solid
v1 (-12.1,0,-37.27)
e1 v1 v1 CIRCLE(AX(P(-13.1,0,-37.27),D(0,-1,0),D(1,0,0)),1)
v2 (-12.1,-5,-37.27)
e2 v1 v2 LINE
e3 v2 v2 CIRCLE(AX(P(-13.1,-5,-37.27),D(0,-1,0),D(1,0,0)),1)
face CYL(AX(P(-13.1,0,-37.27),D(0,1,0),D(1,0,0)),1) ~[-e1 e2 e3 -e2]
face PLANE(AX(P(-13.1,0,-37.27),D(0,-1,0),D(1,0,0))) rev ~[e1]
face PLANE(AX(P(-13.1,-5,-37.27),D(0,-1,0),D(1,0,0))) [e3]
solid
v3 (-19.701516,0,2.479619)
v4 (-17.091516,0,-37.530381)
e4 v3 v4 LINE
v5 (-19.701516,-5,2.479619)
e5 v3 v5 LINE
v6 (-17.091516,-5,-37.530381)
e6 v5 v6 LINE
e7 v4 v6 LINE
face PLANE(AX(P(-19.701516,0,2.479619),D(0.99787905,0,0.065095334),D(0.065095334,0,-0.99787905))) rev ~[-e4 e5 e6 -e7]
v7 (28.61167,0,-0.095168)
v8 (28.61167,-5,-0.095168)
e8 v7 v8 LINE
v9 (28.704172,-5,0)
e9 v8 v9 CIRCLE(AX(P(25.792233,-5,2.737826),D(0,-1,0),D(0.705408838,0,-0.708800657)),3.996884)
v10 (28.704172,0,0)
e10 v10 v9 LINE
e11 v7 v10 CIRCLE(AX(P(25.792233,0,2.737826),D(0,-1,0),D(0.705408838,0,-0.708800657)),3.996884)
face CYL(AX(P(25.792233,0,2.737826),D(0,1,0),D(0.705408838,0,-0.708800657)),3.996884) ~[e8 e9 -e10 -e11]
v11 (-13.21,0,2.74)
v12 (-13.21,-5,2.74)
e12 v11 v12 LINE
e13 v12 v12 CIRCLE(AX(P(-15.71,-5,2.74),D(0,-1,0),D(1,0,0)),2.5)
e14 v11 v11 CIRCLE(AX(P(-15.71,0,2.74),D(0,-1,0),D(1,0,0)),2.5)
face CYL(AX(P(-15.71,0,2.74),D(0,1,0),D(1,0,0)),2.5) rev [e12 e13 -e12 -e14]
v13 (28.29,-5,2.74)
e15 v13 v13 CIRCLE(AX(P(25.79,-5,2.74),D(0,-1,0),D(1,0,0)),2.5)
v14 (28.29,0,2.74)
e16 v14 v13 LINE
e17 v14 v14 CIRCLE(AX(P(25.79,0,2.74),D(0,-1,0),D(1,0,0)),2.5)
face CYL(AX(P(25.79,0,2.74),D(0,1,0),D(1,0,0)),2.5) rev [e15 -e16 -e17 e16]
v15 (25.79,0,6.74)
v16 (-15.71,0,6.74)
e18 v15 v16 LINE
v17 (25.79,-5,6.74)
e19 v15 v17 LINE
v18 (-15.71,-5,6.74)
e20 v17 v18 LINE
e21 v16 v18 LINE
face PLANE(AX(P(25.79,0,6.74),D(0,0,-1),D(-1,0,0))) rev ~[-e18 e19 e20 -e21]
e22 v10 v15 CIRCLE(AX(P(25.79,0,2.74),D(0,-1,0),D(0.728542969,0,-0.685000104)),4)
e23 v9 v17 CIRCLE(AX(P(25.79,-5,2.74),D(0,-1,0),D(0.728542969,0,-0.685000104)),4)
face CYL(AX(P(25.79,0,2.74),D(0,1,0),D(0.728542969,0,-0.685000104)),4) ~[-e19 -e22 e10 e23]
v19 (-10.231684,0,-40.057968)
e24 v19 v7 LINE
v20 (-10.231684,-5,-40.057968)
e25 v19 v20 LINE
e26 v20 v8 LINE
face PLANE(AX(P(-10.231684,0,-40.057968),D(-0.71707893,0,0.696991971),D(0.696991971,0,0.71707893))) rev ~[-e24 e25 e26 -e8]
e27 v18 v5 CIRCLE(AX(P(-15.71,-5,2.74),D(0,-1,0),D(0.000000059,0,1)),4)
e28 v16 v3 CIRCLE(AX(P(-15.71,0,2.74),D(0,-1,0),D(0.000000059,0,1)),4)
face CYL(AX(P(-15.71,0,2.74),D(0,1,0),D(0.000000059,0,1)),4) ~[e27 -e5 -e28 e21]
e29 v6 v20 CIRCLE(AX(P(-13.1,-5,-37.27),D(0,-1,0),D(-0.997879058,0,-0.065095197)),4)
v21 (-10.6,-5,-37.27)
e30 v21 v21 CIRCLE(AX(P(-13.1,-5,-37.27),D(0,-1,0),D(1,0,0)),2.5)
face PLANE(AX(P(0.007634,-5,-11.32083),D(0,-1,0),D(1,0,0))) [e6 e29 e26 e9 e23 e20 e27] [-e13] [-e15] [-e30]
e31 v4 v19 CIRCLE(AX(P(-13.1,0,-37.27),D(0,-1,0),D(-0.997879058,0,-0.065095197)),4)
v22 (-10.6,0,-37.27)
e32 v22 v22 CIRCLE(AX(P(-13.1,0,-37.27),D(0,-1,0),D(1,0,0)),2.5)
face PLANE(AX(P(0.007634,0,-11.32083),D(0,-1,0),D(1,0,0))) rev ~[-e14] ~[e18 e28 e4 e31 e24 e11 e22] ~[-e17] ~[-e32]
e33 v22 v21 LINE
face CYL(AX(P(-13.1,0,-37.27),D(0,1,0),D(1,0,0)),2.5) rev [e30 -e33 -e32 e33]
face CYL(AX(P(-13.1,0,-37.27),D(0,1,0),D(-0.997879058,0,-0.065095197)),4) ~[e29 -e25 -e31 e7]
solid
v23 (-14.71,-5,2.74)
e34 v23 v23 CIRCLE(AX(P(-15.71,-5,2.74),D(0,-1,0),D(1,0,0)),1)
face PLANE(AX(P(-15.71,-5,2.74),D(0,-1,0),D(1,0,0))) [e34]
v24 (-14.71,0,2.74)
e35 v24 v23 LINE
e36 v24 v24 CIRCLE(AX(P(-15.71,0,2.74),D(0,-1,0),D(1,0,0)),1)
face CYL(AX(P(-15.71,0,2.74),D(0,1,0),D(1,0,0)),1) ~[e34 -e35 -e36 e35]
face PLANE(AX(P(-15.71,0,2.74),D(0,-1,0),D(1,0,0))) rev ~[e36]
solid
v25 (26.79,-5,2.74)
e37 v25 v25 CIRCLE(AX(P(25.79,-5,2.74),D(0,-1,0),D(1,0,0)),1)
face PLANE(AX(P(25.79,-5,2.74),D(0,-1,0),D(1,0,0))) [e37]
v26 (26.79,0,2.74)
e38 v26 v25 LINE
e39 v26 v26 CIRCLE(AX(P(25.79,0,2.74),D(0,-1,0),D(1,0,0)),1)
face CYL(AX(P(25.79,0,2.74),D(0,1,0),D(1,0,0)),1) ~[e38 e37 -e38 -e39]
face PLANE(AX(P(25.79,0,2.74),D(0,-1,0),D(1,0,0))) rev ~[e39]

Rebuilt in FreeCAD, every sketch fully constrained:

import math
import FreeCAD as App
import Part
import Sketcher
from FreeCAD import Vector
Q = App.Units.Quantity

doc = App.newDocument("Part")
body = doc.addObject("PartDesign::Body", "Body")
body.AllowCompound = True

# Sketch on XZ plane
sketch1 = body.newObject("Sketcher::SketchObject", "Sketch")
sketch1.AttachmentSupport = (doc.getObject("XZ_Plane"), [""])
sketch1.MapMode = "FlatFace"
sketch1.addGeometry([
    Part.LineSegment(Vector(25.79, 6.74, 0), Vector(-15.71, 6.74, 0)),  # 0
    Part.ArcOfCircle(Part.Circle(Vector(-15.71, 2.74, 0), Vector(0, 0, 1), 4), math.radians(90), math.radians(184)),  # 1
    Part.LineSegment(Vector(-19.7, 2.48, 0), Vector(-17.09, -37.53, 0)),  # 2
    Part.ArcOfCircle(Part.Circle(Vector(-13.1, -37.27, 0), Vector(0, 0, 1), 4), math.radians(-176), math.radians(-44)),  # 3
    Part.LineSegment(Vector(-10.23, -40.06, 0), Vector(28.61, -0.1, 0)),  # 4
    Part.ArcOfCircle(Part.Circle(Vector(25.79, 2.74, 0), Vector(0, 0, 1), 4), math.radians(-45.14), math.radians(-43.23)),  # 5
    Part.ArcOfCircle(Part.Circle(Vector(25.79, 2.74, 0), Vector(0, 0, 1), 4), math.radians(-43), math.radians(90)),  # 6
    Part.Circle(Vector(-13.1, -37.27, 0), Vector(0, 0, 1), 2.5),  # 7
    Part.Circle(Vector(-15.71, 2.74, 0), Vector(0, 0, 1), 2.5),  # 8
    Part.Circle(Vector(25.79, 2.74, 0), Vector(0, 0, 1), 2.5),  # 9
    Part.Circle(Vector(-15.71, 2.74, 0), Vector(0, 0, 1), 1),  # 10
    Part.Circle(Vector(-13.1, -37.27, 0), Vector(0, 0, 1), 1),  # 11
    Part.Circle(Vector(25.79, 2.74, 0), Vector(0, 0, 1), 1),  # 12
], False)
sketch1.addConstraint([
    Sketcher.Constraint("Tangent", 0, 2, 1, 1),
    Sketcher.Constraint("Tangent", 1, 2, 2, 1),
    Sketcher.Constraint("Tangent", 2, 2, 3, 1),
    Sketcher.Constraint("Tangent", 3, 2, 4, 1),
    Sketcher.Constraint("Coincident", 4, 2, 5, 1),
    Sketcher.Constraint("Coincident", 5, 2, 6, 1),
    Sketcher.Constraint("Tangent", 6, 2, 0, 1),
    Sketcher.Constraint("Horizontal", 0),
    Sketcher.Constraint("Coincident", 7, 3, 3, 3),
    Sketcher.Constraint("Coincident", 8, 3, 1, 3),
    Sketcher.Constraint("Coincident", 9, 3, 6, 3),
    Sketcher.Constraint("Coincident", 10, 3, 1, 3),
    Sketcher.Constraint("Coincident", 11, 3, 3, 3),
    Sketcher.Constraint("Coincident", 12, 3, 6, 3),
    Sketcher.Constraint("Equal", 1, 3),
    Sketcher.Constraint("Equal", 3, 6),
    Sketcher.Constraint("Equal", 7, 8),
    Sketcher.Constraint("Equal", 8, 9),
    Sketcher.Constraint("Equal", 10, 11),
    Sketcher.Constraint("Equal", 11, 12),
    Sketcher.Constraint("PointOnObject", 5, 2, -1),
    Sketcher.Constraint("Diameter", 7, Q("5 mm")),
    Sketcher.Constraint("Diameter", 10, Q("2 mm")),
    Sketcher.Constraint("Radius", 1, Q("4 mm")),
    Sketcher.Constraint("DistanceX", 0, 2, 0, 1, Q("41.5 mm")),
    Sketcher.Constraint("DistanceX", 3, 3, -1, 1, Q("13.1 mm")),
    Sketcher.Constraint("DistanceX", 1, 3, -1, 1, Q("15.71 mm")),
    Sketcher.Constraint("DistanceY", -1, 1, 1, 3, Q("2.74 mm")),
    Sketcher.Constraint("DistanceY", 3, 3, -1, 1, Q("37.27 mm")),
    Sketcher.Constraint("Radius", 5, Q("3.996884 mm")),
    Sketcher.Constraint("DistanceX", -1, 1, 4, 2, Q("28.61167 mm")),
    Sketcher.Constraint("DistanceY", 4, 2, 6, 3, Q("2.835168 mm")),
])
pad1 = body.newObject("PartDesign::Pad", "Pad")
pad1.Profile = sketch1
pad1.Length = 5

doc.recompute()
